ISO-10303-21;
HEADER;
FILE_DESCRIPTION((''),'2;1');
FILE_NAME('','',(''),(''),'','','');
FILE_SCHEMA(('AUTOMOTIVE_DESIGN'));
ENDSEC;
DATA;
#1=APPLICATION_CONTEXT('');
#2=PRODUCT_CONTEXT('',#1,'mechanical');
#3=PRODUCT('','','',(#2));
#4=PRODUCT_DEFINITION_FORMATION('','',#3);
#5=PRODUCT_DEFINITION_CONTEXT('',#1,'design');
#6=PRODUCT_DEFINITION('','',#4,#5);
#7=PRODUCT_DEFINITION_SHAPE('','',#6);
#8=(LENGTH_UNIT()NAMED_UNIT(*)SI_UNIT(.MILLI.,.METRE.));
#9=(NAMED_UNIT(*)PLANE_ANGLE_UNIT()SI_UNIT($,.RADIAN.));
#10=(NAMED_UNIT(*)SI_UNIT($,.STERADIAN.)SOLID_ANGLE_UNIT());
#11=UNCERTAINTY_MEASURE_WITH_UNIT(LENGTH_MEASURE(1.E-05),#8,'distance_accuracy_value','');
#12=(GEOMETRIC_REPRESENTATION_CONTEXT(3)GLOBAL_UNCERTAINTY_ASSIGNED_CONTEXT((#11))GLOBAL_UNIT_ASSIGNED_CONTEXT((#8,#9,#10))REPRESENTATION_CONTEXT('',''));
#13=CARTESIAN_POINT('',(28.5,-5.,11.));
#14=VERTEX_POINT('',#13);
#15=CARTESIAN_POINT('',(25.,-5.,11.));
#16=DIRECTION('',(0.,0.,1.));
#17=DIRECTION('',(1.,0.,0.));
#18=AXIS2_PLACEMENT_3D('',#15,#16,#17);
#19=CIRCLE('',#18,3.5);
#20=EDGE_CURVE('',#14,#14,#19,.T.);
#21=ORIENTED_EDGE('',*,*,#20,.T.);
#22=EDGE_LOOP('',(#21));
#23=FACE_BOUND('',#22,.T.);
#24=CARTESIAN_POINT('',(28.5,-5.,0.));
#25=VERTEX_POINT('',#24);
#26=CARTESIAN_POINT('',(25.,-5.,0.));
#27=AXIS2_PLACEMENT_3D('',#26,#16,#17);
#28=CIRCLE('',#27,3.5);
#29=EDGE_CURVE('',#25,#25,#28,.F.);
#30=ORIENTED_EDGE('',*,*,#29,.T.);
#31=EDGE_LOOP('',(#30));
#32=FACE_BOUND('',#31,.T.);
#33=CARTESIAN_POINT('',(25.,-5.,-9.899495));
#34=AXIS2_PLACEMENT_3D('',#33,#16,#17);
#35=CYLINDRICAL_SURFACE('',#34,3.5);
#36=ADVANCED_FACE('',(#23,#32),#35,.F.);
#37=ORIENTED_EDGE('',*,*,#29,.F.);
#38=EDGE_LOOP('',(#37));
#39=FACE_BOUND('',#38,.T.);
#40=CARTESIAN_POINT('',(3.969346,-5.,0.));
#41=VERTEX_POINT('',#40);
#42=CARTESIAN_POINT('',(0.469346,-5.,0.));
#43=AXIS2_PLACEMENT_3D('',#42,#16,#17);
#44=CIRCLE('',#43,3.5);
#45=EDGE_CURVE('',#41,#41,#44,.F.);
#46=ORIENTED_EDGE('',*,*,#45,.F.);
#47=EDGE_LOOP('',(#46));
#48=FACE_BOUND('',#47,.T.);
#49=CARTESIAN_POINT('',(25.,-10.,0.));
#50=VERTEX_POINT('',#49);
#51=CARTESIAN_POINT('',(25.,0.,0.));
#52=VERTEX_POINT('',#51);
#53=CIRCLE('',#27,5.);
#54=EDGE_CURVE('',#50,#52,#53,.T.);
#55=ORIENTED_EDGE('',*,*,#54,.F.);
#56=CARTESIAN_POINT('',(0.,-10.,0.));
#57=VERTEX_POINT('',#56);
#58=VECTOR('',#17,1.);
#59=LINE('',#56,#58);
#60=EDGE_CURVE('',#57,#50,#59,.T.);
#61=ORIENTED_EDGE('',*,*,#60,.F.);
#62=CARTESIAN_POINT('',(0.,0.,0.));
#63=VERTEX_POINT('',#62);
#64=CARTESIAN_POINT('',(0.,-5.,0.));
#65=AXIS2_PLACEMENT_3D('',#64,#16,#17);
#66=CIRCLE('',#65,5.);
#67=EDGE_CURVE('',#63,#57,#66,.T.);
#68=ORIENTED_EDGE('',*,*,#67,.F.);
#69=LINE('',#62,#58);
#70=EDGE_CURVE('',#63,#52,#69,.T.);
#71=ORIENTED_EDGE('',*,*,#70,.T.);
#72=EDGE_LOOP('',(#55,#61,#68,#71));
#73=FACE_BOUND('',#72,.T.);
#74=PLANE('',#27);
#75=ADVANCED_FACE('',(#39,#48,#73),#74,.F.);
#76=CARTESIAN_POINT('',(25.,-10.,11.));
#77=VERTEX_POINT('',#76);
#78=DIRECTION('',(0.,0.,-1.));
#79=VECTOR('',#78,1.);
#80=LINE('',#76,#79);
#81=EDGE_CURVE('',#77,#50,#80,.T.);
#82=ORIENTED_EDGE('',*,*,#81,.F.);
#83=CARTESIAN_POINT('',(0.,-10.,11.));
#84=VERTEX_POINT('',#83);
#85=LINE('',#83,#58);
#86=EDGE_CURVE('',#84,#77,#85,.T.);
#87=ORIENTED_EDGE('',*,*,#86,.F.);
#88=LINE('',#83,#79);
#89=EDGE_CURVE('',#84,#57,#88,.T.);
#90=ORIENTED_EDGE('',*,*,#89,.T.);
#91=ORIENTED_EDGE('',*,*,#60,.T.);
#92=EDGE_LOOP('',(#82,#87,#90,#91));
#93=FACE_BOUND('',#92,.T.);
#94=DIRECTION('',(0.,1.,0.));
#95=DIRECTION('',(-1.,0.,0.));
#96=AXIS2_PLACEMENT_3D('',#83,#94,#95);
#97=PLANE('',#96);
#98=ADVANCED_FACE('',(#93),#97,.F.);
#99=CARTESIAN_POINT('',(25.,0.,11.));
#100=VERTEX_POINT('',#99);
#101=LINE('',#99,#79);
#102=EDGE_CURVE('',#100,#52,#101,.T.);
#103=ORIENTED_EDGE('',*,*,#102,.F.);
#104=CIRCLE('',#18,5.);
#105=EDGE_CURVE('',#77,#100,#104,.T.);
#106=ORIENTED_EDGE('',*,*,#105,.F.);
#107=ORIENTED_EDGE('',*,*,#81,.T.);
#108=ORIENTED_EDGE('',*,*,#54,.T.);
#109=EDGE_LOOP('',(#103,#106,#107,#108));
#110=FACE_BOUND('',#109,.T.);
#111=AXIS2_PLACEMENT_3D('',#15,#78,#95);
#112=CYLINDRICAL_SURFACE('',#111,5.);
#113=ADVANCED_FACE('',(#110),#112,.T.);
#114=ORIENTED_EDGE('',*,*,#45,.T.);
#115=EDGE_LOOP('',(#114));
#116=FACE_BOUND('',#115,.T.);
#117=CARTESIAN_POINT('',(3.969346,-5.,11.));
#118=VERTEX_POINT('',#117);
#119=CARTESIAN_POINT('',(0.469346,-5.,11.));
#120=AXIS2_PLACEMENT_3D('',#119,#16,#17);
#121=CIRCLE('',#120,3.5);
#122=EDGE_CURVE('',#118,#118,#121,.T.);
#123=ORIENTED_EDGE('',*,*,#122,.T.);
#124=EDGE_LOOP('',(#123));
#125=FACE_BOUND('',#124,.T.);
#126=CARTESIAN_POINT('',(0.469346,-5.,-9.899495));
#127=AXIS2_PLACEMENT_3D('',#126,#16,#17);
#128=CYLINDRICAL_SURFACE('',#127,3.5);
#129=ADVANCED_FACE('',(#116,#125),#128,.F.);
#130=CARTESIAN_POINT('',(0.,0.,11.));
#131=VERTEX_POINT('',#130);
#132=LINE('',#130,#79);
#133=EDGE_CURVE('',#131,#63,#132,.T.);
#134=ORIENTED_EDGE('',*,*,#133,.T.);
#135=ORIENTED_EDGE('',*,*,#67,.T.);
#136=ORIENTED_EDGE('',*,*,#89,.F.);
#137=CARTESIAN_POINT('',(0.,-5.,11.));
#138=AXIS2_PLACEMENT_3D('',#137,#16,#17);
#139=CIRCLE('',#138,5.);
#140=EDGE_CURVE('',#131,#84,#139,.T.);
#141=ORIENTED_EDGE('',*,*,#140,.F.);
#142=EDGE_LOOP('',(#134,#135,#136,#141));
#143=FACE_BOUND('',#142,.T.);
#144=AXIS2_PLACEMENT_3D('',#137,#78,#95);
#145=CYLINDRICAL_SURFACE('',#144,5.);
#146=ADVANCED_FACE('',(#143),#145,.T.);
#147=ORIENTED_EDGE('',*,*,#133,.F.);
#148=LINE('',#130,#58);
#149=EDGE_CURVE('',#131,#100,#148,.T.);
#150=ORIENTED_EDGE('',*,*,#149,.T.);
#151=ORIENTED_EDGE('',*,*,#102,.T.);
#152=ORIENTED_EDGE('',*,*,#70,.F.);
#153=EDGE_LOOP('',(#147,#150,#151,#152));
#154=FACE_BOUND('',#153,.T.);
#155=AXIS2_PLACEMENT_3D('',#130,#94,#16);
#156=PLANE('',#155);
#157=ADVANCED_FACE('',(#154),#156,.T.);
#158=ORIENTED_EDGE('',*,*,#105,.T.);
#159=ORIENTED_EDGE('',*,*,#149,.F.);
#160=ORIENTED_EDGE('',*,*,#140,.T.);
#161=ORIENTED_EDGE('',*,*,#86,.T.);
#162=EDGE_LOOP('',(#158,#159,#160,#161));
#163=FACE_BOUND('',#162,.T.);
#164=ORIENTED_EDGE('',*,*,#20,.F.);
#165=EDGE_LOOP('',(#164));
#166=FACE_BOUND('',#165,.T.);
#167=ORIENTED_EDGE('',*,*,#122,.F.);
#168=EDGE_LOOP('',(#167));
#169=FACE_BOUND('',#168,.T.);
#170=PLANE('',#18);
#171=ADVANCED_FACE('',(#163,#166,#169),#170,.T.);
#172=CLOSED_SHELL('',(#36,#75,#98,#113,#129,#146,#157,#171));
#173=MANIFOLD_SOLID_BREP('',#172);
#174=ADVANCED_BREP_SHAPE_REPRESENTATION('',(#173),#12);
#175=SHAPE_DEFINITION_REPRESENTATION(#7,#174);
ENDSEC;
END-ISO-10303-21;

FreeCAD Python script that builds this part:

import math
import FreeCAD as App
import Part
import Sketcher
from FreeCAD import Vector

doc = App.newDocument("Part")
params = doc.addObject("Spreadsheet::Sheet", "Params")
for row, (alias, value) in enumerate([
    ("sketch1_radius", "5 mm"),
    ("sketch1_width", "25 mm"),
    ("pad1_length", "11 mm"),
    ("sketch2_diameter", "7 mm"),
    ("pocket1_length", "11 mm"),
], start=1):
    params.set(f"A{row}", alias)
    params.set(f"B{row}", "=" + value)
    params.setAlias(f"B{row}", alias)

body = doc.addObject("PartDesign::Body", "Body")

# Sketch on XY plane
sketch1 = body.newObject("Sketcher::SketchObject", "Sketch")
sketch1.AttachmentSupport = (doc.getObject("XY_Plane"), [""])
sketch1.MapMode = "FlatFace"
sketch1.addGeometry([
    Part.ArcOfCircle(Part.Circle(Vector(25, -5, 0), Vector(0, 0, 1), 5), math.radians(-90), math.radians(90)),
    Part.LineSegment(Vector(25, 0, 0), Vector(0, 0, 0)),
    Part.ArcOfCircle(Part.Circle(Vector(0, -5, 0), Vector(0, 0, 1), 5), math.radians(90), math.radians(270)),
    Part.LineSegment(Vector(0, -10, 0), Vector(25, -10, 0)),
], False)
sketch1.addConstraint([
    Sketcher.Constraint("Tangent", 0, 2, 1, 1),
    Sketcher.Constraint("Tangent", 1, 2, 2, 1),
    Sketcher.Constraint("Tangent", 2, 2, 3, 1),
    Sketcher.Constraint("Tangent", 3, 2, 0, 1),
    Sketcher.Constraint("Horizontal", 1),
    Sketcher.Constraint("Horizontal", 3),
    Sketcher.Constraint("Coincident", 1, 2, -1, 1),
    Sketcher.Constraint("Radius", 0, 5.0),
    Sketcher.Constraint("DistanceX", 1, 2, 1, 1, 25.0),
])
sketch1.setExpression("Constraints[7]", "Params.sketch1_radius")
sketch1.setExpression("Constraints[8]", "Params.sketch1_width")
pad1 = body.newObject("PartDesign::Pad", "Pad")
pad1.Profile = sketch1
pad1.setExpression("Length", "Params.pad1_length")

# Sketch on XY plane
sketch2 = body.newObject("Sketcher::SketchObject", "Sketch001")
sketch2.AttachmentSupport = (doc.getObject("XY_Plane"), [""])
sketch2.MapMode = "FlatFace"
sketch2.AttachmentOffset = App.Placement(Vector(0, 0, 11), App.Rotation())
sketch2.addGeometry([
    Part.Circle(Vector(0.5, -5, 0), Vector(0, 0, 1), 3.5),
    Part.Circle(Vector(25, -5, 0), Vector(0, 0, 1), 3.5),
], False)
sketch2.addConstraint([
    Sketcher.Constraint("Equal", 0, 1),
    Sketcher.Constraint("Horizontal", 0, 3, 1, 3),
    Sketcher.Constraint("Diameter", 0, 7.0),
    Sketcher.Constraint("DistanceY", 0, 3, -1, 1, 5.0),
    Sketcher.Constraint("DistanceX", -1, 1, 1, 3, 25.0),
    Sketcher.Constraint("DistanceX", -1, 1, 0, 3, 0.469346),
])
sketch2.setExpression("Constraints[2]", "Params.sketch2_diameter")
pocket1 = body.newObject("PartDesign::Pocket", "Pocket")
pocket1.Profile = sketch2
pocket1.setExpression("Length", "Params.pocket1_length")

doc.recompute()
